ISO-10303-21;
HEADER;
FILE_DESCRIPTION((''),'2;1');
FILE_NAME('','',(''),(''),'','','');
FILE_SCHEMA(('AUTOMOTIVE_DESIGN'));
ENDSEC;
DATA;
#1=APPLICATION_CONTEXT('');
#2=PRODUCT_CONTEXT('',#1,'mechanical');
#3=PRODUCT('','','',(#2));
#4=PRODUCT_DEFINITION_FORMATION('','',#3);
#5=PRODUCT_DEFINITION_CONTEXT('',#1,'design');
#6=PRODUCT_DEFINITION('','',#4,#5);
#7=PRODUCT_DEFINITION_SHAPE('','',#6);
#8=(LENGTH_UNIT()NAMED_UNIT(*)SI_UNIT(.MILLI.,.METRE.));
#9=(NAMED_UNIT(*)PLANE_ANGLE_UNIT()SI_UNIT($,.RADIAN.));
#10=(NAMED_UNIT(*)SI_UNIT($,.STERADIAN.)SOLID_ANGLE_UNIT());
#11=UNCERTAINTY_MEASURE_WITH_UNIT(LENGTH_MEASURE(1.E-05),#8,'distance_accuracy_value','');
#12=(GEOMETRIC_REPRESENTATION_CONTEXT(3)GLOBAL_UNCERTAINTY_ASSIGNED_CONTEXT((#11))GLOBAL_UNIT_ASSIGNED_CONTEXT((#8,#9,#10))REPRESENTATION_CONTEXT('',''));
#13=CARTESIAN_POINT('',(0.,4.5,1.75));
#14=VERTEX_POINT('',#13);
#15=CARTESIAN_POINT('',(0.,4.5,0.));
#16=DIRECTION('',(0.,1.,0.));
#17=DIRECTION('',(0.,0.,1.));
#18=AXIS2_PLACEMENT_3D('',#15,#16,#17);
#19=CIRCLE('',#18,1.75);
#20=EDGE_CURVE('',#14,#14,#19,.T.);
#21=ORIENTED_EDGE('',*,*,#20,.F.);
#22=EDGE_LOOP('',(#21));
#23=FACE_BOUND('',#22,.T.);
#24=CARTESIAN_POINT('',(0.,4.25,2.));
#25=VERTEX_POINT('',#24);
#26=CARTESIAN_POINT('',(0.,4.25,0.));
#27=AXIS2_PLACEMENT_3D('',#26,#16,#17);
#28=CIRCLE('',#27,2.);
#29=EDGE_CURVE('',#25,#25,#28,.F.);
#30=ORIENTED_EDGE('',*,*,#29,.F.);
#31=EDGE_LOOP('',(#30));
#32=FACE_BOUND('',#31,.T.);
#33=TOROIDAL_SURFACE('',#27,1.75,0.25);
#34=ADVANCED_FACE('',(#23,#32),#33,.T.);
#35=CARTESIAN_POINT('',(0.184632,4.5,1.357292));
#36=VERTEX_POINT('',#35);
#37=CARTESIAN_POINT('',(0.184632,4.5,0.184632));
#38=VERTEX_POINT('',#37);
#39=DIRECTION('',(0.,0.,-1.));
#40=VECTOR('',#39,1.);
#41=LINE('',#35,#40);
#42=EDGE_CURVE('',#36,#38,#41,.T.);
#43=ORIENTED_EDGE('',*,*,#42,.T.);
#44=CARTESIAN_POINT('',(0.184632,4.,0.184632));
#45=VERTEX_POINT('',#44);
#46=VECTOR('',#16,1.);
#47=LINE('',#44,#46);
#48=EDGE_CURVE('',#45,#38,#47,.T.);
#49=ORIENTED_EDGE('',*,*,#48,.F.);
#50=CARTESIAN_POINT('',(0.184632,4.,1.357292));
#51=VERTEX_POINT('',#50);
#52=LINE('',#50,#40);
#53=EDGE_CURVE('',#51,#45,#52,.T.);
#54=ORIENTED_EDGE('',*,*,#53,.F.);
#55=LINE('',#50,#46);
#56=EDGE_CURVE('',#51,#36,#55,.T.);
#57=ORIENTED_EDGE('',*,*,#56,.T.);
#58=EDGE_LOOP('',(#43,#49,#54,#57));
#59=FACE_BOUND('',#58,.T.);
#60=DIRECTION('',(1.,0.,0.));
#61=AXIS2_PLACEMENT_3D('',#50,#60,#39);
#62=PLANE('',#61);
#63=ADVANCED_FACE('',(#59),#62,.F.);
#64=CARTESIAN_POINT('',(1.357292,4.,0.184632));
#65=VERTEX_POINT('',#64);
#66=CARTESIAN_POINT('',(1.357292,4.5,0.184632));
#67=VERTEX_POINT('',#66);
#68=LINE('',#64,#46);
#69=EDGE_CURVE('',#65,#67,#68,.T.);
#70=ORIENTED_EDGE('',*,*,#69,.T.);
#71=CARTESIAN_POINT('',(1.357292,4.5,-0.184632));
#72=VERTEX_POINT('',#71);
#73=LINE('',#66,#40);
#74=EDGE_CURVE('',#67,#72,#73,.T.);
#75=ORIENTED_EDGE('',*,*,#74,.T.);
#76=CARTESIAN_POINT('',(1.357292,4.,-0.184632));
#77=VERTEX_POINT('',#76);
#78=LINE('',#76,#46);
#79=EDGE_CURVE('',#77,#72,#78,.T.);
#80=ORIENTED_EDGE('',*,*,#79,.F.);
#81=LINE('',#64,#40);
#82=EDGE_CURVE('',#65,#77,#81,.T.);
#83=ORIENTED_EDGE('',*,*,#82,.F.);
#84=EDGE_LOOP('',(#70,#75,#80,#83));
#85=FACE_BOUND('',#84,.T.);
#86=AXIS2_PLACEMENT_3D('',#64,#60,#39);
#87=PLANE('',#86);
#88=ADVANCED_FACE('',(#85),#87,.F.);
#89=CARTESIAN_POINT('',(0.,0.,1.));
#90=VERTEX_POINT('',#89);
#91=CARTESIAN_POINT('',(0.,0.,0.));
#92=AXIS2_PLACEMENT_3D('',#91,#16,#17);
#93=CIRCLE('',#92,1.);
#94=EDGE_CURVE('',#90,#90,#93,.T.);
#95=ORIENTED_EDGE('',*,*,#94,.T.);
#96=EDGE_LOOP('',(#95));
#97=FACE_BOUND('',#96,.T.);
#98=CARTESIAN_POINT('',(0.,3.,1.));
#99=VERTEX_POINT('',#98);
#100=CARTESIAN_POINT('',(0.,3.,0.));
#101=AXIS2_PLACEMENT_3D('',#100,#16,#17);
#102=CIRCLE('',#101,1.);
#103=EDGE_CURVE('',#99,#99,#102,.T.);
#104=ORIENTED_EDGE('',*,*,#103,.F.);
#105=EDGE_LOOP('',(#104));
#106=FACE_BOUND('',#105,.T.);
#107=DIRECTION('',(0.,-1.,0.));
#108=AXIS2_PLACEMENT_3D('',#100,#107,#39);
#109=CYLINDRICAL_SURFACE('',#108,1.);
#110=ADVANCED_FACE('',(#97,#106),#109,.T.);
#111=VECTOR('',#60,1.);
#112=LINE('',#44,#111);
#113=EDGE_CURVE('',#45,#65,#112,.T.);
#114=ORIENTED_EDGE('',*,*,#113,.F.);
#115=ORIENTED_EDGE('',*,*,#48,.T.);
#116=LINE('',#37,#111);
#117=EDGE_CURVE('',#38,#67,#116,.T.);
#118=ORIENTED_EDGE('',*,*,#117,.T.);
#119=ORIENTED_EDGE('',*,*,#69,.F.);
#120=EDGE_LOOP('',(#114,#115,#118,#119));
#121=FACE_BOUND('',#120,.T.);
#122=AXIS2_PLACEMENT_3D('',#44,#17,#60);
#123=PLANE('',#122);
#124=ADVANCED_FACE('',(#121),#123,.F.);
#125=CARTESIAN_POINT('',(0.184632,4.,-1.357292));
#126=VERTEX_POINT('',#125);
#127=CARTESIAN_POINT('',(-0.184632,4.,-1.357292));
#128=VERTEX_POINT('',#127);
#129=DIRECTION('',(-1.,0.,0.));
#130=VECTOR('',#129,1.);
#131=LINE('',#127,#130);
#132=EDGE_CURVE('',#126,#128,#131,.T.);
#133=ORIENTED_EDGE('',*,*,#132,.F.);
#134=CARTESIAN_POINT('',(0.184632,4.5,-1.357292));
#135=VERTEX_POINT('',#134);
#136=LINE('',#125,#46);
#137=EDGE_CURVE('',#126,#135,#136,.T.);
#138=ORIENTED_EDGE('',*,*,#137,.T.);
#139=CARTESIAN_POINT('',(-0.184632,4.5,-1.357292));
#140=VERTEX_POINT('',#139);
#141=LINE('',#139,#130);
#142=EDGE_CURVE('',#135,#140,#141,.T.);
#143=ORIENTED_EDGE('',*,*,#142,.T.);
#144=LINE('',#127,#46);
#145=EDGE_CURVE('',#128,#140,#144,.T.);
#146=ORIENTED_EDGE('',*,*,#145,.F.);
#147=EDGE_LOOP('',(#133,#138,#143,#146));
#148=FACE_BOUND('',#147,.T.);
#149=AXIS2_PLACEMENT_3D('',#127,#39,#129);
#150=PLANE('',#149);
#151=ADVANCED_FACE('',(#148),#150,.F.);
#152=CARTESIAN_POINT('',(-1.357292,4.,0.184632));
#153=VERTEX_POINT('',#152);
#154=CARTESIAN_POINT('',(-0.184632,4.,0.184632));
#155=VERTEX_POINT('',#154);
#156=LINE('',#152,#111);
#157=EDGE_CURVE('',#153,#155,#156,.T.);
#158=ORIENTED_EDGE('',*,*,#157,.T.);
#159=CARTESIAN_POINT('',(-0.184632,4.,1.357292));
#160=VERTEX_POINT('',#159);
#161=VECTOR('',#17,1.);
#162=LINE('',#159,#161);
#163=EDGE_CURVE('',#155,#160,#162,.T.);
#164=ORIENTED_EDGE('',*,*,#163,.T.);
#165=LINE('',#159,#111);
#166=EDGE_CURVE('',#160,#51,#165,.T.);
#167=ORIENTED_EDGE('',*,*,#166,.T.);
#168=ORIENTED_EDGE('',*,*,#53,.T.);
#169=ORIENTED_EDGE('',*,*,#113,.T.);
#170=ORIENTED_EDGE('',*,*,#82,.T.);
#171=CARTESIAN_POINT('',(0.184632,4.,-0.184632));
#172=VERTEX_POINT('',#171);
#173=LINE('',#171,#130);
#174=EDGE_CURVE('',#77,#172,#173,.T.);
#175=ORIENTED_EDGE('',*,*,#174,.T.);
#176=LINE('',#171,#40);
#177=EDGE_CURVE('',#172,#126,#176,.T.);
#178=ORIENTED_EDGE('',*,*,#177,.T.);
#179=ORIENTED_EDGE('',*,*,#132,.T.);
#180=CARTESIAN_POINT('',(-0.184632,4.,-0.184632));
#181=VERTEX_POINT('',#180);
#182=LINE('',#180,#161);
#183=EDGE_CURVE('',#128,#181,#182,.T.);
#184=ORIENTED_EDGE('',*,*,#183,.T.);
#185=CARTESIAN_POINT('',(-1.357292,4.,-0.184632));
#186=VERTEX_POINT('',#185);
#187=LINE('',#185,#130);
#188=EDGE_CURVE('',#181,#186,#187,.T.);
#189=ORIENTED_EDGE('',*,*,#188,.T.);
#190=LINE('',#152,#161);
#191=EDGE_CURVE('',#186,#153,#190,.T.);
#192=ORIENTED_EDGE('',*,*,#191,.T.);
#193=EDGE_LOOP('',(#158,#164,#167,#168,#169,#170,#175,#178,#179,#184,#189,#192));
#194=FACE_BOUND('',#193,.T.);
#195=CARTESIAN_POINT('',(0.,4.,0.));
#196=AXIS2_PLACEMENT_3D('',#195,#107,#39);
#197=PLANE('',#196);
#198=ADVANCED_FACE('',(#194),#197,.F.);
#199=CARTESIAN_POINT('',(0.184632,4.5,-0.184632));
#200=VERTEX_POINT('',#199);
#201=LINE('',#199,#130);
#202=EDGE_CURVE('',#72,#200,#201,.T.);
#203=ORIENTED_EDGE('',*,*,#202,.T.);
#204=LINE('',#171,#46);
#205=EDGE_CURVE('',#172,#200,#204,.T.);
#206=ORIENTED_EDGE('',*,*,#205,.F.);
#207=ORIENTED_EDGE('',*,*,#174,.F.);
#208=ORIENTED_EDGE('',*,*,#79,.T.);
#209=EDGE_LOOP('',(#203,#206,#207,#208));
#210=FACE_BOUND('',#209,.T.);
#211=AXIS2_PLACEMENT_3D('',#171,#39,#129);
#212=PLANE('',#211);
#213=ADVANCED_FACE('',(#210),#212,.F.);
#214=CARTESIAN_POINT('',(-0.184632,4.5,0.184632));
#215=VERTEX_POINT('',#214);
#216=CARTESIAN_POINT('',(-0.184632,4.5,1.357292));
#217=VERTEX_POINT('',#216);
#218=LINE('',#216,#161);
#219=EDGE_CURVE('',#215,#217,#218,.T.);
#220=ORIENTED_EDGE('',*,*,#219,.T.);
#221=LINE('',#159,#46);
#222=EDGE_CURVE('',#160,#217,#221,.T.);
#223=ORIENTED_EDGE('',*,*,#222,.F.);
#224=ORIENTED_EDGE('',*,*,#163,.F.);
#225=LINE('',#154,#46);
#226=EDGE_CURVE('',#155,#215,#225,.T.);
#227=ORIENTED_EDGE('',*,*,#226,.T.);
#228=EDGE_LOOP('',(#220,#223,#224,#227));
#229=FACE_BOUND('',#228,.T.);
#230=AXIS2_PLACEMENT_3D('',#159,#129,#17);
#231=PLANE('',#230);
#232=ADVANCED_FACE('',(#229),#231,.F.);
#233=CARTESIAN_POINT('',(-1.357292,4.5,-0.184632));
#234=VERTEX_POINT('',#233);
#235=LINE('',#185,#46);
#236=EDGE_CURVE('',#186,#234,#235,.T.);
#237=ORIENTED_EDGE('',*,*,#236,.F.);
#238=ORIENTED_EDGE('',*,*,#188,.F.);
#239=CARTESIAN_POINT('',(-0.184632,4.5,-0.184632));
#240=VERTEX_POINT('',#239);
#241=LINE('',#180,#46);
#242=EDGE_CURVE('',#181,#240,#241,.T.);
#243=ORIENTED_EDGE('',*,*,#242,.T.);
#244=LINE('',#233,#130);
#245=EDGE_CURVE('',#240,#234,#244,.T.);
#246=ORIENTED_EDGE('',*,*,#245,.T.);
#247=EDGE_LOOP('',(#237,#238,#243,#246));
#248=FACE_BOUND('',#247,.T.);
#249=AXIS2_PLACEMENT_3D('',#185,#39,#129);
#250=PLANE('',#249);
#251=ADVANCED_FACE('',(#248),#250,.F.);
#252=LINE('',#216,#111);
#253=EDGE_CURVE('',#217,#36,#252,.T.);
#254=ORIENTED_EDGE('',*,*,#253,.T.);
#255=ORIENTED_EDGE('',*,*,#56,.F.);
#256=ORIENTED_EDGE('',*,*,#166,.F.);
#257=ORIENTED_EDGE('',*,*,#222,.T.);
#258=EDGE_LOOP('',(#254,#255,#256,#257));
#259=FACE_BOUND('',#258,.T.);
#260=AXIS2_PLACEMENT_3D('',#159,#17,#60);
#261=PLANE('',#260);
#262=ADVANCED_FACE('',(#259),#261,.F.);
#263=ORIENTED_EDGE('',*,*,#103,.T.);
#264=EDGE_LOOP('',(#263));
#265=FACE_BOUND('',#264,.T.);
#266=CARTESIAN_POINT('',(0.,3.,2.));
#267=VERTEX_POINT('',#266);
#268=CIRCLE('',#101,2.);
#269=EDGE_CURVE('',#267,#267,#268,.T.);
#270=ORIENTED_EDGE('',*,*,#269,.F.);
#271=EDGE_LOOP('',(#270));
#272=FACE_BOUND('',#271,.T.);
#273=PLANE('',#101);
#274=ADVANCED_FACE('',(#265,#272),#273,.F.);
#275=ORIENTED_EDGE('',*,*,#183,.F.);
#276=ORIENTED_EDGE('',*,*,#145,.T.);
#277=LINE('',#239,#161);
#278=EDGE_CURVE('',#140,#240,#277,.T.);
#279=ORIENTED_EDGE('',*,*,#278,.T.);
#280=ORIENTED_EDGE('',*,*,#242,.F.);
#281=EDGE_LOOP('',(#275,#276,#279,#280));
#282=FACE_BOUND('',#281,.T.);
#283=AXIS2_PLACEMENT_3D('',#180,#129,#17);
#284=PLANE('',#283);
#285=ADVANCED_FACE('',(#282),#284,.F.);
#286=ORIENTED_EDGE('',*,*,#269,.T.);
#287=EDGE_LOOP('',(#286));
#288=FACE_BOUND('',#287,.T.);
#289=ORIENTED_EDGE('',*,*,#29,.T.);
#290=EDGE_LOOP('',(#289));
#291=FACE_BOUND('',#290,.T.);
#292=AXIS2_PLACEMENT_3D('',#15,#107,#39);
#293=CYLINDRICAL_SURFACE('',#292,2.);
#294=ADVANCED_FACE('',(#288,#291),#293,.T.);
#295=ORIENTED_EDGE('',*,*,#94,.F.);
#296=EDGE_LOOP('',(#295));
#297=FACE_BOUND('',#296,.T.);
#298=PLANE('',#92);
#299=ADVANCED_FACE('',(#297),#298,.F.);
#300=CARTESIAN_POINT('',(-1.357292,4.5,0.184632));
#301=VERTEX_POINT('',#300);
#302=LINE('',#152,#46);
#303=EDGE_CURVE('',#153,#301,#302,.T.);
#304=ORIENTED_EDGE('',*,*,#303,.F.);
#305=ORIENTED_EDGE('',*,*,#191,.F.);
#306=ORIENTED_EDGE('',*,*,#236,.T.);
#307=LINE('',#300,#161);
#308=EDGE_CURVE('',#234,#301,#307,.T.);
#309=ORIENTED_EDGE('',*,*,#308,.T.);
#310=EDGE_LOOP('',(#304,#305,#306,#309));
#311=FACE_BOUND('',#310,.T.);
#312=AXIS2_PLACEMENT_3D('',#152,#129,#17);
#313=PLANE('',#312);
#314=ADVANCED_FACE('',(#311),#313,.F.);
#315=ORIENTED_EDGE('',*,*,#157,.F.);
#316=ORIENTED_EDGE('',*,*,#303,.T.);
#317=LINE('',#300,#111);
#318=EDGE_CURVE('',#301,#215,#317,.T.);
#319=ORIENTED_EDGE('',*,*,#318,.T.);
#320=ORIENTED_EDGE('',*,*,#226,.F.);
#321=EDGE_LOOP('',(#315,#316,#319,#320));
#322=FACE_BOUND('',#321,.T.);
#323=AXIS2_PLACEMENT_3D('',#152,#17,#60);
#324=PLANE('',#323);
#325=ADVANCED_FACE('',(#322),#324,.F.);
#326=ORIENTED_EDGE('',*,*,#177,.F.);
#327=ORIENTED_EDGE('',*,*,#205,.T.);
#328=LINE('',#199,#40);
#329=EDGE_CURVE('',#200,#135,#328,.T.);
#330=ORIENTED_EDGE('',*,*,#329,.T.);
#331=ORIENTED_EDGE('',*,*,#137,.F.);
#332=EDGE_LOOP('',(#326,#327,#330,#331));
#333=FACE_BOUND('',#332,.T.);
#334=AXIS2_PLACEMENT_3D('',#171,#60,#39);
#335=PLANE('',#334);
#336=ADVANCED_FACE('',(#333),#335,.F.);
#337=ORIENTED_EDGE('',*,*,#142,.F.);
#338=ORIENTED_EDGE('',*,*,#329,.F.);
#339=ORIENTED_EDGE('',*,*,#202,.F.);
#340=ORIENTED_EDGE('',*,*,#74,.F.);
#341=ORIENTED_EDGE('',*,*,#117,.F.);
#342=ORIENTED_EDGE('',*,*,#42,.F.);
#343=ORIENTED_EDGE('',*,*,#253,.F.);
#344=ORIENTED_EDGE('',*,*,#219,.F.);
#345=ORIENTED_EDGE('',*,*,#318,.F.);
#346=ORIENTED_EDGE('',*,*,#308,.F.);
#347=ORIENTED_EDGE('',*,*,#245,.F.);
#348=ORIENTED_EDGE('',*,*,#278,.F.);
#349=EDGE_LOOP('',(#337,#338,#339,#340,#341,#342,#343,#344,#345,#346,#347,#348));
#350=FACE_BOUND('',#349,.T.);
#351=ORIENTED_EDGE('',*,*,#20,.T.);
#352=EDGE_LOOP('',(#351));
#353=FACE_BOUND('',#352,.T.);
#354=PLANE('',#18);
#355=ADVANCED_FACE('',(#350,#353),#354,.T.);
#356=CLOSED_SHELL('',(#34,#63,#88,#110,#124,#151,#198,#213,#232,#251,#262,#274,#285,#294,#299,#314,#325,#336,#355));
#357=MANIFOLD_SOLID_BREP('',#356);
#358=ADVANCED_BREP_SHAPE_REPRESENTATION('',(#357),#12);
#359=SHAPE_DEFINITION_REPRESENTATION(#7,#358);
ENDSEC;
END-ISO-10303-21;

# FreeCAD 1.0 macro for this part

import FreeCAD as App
import Part
import Sketcher

V = App.Vector
Q = App.Units.Quantity


def edges_at(feature, points):
    """Names of the edges that pass closest to the given points."""
    edges = feature.Shape.Edges
    near = lambda p: min(range(len(edges)), key=lambda i: edges[i].distToShape(Part.Vertex(*p))[0])
    return sorted({f"Edge{near(p) + 1}" for p in points})


def add_polygon(sketch, points):
    """Adds a closed chain of lines whose ends are joined by coincident constraints."""
    first, n = sketch.GeometryCount, len(points)
    for a, b in zip(points, points[1:] + points[:1]):
        sketch.addGeometry(Part.LineSegment(App.Vector(*a, 0), App.Vector(*b, 0)), False)
    for i in range(n):
        sketch.addConstraint(Sketcher.Constraint("Coincident", first + i, 2, first + (i + 1) % n, 1))

doc = App.newDocument("Part")
body = doc.addObject("PartDesign::Body", "Body")

# Sketch on XZ plane
sketch1 = doc.addObject("Sketcher::SketchObject", "Sketch")
body.addObject(sketch1)
sketch1.AttachmentSupport = (doc.XZ_Plane, [""])
sketch1.MapMode = "FlatFace"
sketch1.addGeometry(Part.Circle(V(0, 0, 0), V(0, 0, 1), 1), False)
sketch1.addConstraint([
    Sketcher.Constraint("Coincident", 0, 3, -1, 1),
    Sketcher.Constraint("Diameter", 0, Q("2 mm")),
])
pad1 = doc.addObject("PartDesign::Pad", "Pad")
body.addObject(pad1)
pad1.Profile = sketch1
pad1.Length = 3
pad1.Reversed = True

# Sketch on XZ plane
sketch2 = doc.addObject("Sketcher::SketchObject", "Sketch001")
body.addObject(sketch2)
sketch2.AttachmentSupport = (doc.XZ_Plane, [""])
sketch2.MapMode = "FlatFace"
sketch2.AttachmentOffset = App.Placement(V(0, 0, -3), App.Rotation())
sketch2.addGeometry(Part.Circle(V(0, 0, 0), V(0, 0, 1), 2), False)
sketch2.addConstraint([
    Sketcher.Constraint("Coincident", 0, 3, -1, 1),
    Sketcher.Constraint("Diameter", 0, Q("4 mm")),
])
pad2 = doc.addObject("PartDesign::Pad", "Pad001")
body.addObject(pad2)
pad2.Profile = sketch2
pad2.Length = 1.5
pad2.Reversed = True
doc.recompute()

fillet = doc.addObject("PartDesign::Fillet", "Fillet")
body.addObject(fillet)
fillet.Base = (pad2, edges_at(pad2, [(0, 4.5, -2)]))
fillet.Radius = 0.25

# Sketch on XZ plane
sketch3 = doc.addObject("Sketcher::SketchObject", "Sketch002")
body.addObject(sketch3)
sketch3.AttachmentSupport = (doc.XZ_Plane, [""])
sketch3.MapMode = "FlatFace"
sketch3.AttachmentOffset = App.Placement(V(0, 0, -4.5), App.Rotation())
add_polygon(sketch3, [(-0.18, 1.36), (0.18, 1.36), (0.18, 0.18), (1.36, 0.18), (1.36, -0.18), (0.18, -0.18), (0.18, -1.36), (-0.18, -1.36), (-0.18, -0.18), (-1.36, -0.18), (-1.36, 0.18), (-0.18, 0.18)])  # lines 0-11
sketch3.addConstraint([
    Sketcher.Constraint("Horizontal", 0),
    Sketcher.Constraint("Vertical", 1),
    Sketcher.Constraint("Horizontal", 2),
    Sketcher.Constraint("Vertical", 3),
    Sketcher.Constraint("Horizontal", 4),
    Sketcher.Constraint("Vertical", 5),
    Sketcher.Constraint("Horizontal", 6),
    Sketcher.Constraint("Vertical", 7),
    Sketcher.Constraint("Horizontal", 8),
    Sketcher.Constraint("Vertical", 9),
    Sketcher.Constraint("Horizontal", 10),
    Sketcher.Constraint("Vertical", 11),
    Sketcher.Constraint("Symmetric", 0, 2, 6, 2, -1, 1),
    Sketcher.Constraint("Symmetric", 2, 2, 8, 2, -1, 1),
    Sketcher.Constraint("Symmetric", 4, 2, 10, 2, -1, 1),
    Sketcher.Constraint("Symmetric", 4, 2, 7, 2, -2),
    Sketcher.Constraint("Equal", 10, 1),
    Sketcher.Constraint("Equal", 6, 3),
    Sketcher.Constraint("DistanceX", 2, 1, 2, 2, Q("1.17266 mm")),
    Sketcher.Constraint("DistanceX", 0, 1, 0, 2, Q("0.369263 mm")),
])
pocket1 = doc.addObject("PartDesign::Pocket", "Pocket")
body.addObject(pocket1)
pocket1.Profile = sketch3
pocket1.Length = 0.5
pocket1.Reversed = True

doc.recompute()
